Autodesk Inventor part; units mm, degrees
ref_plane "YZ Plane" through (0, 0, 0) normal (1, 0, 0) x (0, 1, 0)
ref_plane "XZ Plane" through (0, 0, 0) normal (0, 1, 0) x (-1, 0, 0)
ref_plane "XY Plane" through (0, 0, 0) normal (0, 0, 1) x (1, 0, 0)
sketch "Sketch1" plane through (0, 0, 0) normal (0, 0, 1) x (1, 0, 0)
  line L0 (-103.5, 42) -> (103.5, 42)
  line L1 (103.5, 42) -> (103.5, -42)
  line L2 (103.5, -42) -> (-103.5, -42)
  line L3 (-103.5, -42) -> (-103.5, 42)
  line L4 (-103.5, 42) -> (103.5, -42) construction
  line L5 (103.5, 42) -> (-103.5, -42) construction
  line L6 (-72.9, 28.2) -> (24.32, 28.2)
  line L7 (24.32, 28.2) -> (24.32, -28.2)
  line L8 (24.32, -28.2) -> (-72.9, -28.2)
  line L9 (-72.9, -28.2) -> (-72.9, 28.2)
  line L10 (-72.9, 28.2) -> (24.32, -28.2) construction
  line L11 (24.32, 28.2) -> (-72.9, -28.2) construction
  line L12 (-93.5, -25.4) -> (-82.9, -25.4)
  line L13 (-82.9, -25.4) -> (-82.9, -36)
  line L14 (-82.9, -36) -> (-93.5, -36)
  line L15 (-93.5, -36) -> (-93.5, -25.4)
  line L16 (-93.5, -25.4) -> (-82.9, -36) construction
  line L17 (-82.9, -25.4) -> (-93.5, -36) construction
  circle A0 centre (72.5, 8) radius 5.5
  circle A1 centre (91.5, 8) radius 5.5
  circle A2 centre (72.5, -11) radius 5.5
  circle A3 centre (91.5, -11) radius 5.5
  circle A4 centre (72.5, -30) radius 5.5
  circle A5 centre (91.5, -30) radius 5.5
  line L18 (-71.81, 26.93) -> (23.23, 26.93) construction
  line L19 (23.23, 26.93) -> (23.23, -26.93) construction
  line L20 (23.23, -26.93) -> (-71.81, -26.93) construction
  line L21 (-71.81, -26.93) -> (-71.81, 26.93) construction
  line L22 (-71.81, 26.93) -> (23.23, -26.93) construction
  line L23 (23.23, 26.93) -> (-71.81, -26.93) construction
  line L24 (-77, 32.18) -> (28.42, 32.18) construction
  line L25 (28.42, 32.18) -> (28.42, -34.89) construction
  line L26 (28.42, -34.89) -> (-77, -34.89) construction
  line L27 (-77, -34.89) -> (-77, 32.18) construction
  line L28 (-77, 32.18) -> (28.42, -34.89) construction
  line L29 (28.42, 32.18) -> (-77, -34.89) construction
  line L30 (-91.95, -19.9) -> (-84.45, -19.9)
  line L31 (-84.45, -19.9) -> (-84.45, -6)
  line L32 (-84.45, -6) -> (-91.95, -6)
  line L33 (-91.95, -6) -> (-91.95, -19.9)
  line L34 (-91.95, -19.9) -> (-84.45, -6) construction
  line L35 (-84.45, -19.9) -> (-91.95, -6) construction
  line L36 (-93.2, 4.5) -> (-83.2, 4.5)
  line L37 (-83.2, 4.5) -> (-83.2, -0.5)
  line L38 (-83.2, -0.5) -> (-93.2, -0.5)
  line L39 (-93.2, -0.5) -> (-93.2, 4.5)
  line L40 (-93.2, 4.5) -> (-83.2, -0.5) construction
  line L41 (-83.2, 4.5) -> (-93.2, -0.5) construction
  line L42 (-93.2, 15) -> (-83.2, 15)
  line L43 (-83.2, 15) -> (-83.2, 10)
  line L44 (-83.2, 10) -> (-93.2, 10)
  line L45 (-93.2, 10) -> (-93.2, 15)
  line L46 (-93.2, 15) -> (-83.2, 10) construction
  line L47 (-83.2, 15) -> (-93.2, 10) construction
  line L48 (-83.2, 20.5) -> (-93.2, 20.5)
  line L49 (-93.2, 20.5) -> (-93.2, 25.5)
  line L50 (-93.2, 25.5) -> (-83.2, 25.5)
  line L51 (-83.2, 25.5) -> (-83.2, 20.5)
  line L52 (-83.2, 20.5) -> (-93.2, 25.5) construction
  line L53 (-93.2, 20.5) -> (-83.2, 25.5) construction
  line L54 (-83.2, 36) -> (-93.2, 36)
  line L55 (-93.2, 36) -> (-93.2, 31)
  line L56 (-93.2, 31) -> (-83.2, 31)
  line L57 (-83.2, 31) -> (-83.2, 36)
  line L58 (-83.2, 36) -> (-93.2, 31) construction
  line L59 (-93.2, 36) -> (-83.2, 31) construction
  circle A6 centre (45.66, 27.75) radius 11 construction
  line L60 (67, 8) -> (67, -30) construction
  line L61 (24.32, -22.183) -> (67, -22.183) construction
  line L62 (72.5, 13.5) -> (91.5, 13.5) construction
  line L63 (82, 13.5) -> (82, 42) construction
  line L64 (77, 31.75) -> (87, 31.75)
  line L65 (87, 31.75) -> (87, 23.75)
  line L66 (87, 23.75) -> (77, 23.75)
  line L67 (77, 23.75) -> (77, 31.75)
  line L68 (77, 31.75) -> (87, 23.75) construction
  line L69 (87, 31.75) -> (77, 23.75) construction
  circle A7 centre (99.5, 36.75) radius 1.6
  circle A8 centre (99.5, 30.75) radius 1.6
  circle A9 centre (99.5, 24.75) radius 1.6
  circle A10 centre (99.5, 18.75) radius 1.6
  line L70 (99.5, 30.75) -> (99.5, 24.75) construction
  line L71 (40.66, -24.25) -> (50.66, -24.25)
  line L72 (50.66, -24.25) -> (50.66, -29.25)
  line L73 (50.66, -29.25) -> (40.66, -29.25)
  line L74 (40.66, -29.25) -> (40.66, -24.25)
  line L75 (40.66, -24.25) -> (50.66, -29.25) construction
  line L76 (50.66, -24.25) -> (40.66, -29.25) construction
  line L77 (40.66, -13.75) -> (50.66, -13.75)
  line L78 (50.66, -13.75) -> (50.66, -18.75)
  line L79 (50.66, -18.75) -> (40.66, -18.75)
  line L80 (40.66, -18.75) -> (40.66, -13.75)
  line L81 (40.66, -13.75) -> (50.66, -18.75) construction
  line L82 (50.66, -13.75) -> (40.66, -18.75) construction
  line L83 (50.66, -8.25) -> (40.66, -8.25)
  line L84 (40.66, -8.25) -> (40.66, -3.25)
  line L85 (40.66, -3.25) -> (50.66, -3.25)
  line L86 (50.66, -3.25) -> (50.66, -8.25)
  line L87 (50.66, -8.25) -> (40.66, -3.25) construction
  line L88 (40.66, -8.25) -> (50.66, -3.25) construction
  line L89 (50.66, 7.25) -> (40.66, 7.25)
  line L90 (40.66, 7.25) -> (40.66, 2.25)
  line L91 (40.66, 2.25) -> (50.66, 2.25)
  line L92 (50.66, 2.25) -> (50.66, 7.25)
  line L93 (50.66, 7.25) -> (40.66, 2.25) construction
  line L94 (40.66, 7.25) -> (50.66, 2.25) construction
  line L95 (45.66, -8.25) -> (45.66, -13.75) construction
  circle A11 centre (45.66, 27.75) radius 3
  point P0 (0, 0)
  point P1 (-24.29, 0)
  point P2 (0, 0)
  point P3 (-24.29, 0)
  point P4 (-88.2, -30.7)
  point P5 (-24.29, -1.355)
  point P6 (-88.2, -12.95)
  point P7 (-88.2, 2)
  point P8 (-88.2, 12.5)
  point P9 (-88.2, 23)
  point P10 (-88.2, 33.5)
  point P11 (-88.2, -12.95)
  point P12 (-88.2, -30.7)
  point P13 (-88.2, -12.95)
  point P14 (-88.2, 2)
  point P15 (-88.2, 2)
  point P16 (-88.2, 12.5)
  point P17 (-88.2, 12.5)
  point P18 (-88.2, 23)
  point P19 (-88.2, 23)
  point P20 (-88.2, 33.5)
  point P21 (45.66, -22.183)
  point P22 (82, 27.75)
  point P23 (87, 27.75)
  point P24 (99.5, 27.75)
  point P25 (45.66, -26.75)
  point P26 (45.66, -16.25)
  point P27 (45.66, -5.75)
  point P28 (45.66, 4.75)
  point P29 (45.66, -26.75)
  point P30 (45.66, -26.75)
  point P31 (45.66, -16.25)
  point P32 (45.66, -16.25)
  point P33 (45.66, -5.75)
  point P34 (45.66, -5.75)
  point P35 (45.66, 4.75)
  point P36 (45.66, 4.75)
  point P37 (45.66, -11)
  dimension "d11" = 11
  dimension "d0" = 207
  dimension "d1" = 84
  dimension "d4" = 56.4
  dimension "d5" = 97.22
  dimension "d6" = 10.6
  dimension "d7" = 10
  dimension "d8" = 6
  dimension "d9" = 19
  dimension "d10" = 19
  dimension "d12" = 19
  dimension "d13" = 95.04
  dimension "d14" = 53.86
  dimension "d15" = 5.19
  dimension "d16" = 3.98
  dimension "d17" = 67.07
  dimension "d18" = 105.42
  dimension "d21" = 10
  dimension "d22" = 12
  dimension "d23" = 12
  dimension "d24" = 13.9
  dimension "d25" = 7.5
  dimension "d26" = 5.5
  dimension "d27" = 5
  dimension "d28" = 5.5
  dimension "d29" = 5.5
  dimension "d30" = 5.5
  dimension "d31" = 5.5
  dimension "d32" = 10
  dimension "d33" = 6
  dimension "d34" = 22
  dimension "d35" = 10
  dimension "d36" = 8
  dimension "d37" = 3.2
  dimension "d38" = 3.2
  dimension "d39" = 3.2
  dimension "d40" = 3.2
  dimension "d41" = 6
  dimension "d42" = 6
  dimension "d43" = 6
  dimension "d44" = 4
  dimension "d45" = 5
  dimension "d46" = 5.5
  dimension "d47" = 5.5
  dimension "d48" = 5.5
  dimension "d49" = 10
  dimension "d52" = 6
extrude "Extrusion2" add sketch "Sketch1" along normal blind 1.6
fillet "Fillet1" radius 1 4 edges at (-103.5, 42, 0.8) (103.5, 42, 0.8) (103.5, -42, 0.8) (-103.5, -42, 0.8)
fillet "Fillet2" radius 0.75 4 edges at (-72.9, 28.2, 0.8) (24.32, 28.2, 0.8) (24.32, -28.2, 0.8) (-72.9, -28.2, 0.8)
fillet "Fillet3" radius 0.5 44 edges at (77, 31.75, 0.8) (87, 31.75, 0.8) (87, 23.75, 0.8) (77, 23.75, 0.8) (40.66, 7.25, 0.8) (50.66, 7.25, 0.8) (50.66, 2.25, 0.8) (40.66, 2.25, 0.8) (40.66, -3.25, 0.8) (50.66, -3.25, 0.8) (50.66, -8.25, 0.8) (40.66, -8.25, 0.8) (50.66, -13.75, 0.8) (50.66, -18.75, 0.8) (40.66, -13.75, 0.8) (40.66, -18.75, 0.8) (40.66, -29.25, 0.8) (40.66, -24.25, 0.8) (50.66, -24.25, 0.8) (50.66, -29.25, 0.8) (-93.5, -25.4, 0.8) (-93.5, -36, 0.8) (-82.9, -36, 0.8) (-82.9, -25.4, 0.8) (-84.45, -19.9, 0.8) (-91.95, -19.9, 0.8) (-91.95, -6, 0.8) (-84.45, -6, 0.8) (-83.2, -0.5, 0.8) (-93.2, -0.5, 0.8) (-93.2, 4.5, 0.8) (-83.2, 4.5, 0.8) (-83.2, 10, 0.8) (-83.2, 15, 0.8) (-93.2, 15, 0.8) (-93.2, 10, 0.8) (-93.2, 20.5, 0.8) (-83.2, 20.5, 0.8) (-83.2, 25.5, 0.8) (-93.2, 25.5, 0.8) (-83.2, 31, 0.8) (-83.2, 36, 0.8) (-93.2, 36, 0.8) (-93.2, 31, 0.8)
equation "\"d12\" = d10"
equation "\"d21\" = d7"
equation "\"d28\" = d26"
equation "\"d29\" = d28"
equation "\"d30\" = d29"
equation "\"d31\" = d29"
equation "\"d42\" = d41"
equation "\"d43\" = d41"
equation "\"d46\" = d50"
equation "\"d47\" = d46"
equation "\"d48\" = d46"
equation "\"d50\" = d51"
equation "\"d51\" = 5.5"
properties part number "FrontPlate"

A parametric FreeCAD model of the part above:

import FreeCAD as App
import Part
import Sketcher
Q = App.Units.Quantity


def edges_at(feature, points):
    """Names of the edges that pass closest to the given points."""
    edges = feature.Shape.Edges
    near = lambda p: min(range(len(edges)), key=lambda i: edges[i].distToShape(Part.Vertex(*p))[0])
    return sorted({f"Edge{near(p) + 1}" for p in points})


def add_polygon(sketch, points):
    """Adds a closed chain of lines whose ends are joined by coincident constraints."""
    first, n = sketch.GeometryCount, len(points)
    for a, b in zip(points, points[1:] + points[:1]):
        sketch.addGeometry(Part.LineSegment(App.Vector(*a, 0), App.Vector(*b, 0)), False)
    for i in range(n):
        sketch.addConstraint(Sketcher.Constraint("Coincident", first + i, 2, first + (i + 1) % n, 1))

doc = App.newDocument("Part")
params = doc.addObject("Spreadsheet::Sheet", "Params")
for row, (alias, value) in enumerate([
    ("sketch1_diameter", "11 mm"),
    ("sketch1_diameter2", "6 mm"),
    ("sketch1_diameter3", "3.2 mm"),
    ("sketch1_width", "207 mm"),
    ("sketch1_width2", "10 mm"),
    ("pad1_length", "1.6 mm"),
    ("fillet_radius", "1 mm"),
    ("fillet2_radius", "0.75 mm"),
    ("fillet3_radius", "0.5 mm"),
], start=1):
    params.set(f"A{row}", alias)
    params.set(f"B{row}", "=" + value)
    params.setAlias(f"B{row}", alias)

body = doc.addObject("PartDesign::Body", "Body")

# Sketch on XY plane
sketch1 = body.newObject("Sketcher::SketchObject", "Sketch")
sketch1.AttachmentSupport = (doc.getObject("XY_Plane"), [""])
sketch1.MapMode = "FlatFace"
add_polygon(sketch1, [(103.5, 42), (-103.5, 42), (-103.5, -42), (103.5, -42)])  # lines 0-3
add_polygon(sketch1, [(-93.5, -36), (-93.5, -25.4), (-82.9, -25.4), (-82.9, -36)])  # lines 4-7
add_polygon(sketch1, [(-84.5, -19.9), (-92, -19.9), (-92, -6), (-84.5, -6)])  # lines 8-11
add_polygon(sketch1, [(40.7, -29.2), (40.7, -24.2), (50.7, -24.2), (50.7, -29.2)])  # lines 12-15
sketch1.addGeometry(Part.Circle(App.Vector(72.5, -30, 0), App.Vector(0, 0, 1), 5.5), False)  # 16
sketch1.addGeometry(Part.Circle(App.Vector(91.5, -30, 0), App.Vector(0, 0, 1), 5.5), False)  # 17
add_polygon(sketch1, [(40.7, -18.8), (40.7, -13.8), (50.7, -13.8), (50.7, -18.8)])  # lines 18-21
add_polygon(sketch1, [(50.7, -3.2), (50.7, -8.2), (40.7, -8.2), (40.7, -3.2)])  # lines 22-25
sketch1.addGeometry(Part.Circle(App.Vector(72.5, -11, 0), App.Vector(0, 0, 1), 5.5), False)  # 26
sketch1.addGeometry(Part.Circle(App.Vector(91.5, -11, 0), App.Vector(0, 0, 1), 5.5), False)  # 27
add_polygon(sketch1, [(-93.2, -0.5), (-93.2, 4.5), (-83.2, 4.5), (-83.2, -0.5)])  # lines 28-31
add_polygon(sketch1, [(-93.2, 10), (-93.2, 15), (-83.2, 15), (-83.2, 10)])  # lines 32-35
add_polygon(sketch1, [(-72.9, -28.2), (-72.9, 28.2), (24.3, 28.2), (24.3, -28.2)])  # lines 36-39
add_polygon(sketch1, [(-83.2, 25.5), (-83.2, 20.5), (-93.2, 20.5), (-93.2, 25.5)])  # lines 40-43
add_polygon(sketch1, [(-93.2, 36), (-83.2, 36), (-83.2, 31), (-93.2, 31)])  # lines 44-47
add_polygon(sketch1, [(40.7, 7.2), (50.7, 7.2), (50.7, 2.2), (40.7, 2.2)])  # lines 48-51
sketch1.addGeometry(Part.Circle(App.Vector(72.5, 8, 0), App.Vector(0, 0, 1), 5.5), False)  # 52
sketch1.addGeometry(Part.Circle(App.Vector(91.5, 8, 0), App.Vector(0, 0, 1), 5.5), False)  # 53
sketch1.addGeometry(Part.Circle(App.Vector(99.5, 18.8, 0), App.Vector(0, 0, 1), 1.6), False)  # 54
sketch1.addGeometry(Part.Circle(App.Vector(45.7, 27.8, 0), App.Vector(0, 0, 1), 3), False)  # 55
sketch1.addGeometry(Part.Circle(App.Vector(99.5, 24.8, 0), App.Vector(0, 0, 1), 1.6), False)  # 56
add_polygon(sketch1, [(77, 23.8), (77, 31.8), (87, 31.8), (87, 23.8)])  # lines 57-60
sketch1.addGeometry(Part.Circle(App.Vector(99.5, 30.8, 0), App.Vector(0, 0, 1), 1.6), False)  # 61
sketch1.addGeometry(Part.Circle(App.Vector(99.5, 36.8, 0), App.Vector(0, 0, 1), 1.6), False)  # 62
sketch1.addConstraint([
    Sketcher.Constraint("Horizontal", 0),
    Sketcher.Constraint("Vertical", 1),
    Sketcher.Constraint("Horizontal", 2),
    Sketcher.Constraint("Vertical", 3),
    Sketcher.Constraint("Vertical", 4),
    Sketcher.Constraint("Horizontal", 5),
    Sketcher.Constraint("Vertical", 6),
    Sketcher.Constraint("Horizontal", 7),
    Sketcher.Constraint("Horizontal", 8),
    Sketcher.Constraint("Vertical", 9),
    Sketcher.Constraint("Horizontal", 10),
    Sketcher.Constraint("Vertical", 11),
    Sketcher.Constraint("Vertical", 12),
    Sketcher.Constraint("Horizontal", 13),
    Sketcher.Constraint("Vertical", 14),
    Sketcher.Constraint("Horizontal", 15),
    Sketcher.Constraint("Vertical", 18),
    Sketcher.Constraint("Horizontal", 19),
    Sketcher.Constraint("Vertical", 20),
    Sketcher.Constraint("Horizontal", 21),
    Sketcher.Constraint("Vertical", 22),
    Sketcher.Constraint("Horizontal", 23),
    Sketcher.Constraint("Vertical", 24),
    Sketcher.Constraint("Horizontal", 25),
    Sketcher.Constraint("Vertical", 28),
    Sketcher.Constraint("Horizontal", 29),
    Sketcher.Constraint("Vertical", 30),
    Sketcher.Constraint("Horizontal", 31),
    Sketcher.Constraint("Vertical", 32),
    Sketcher.Constraint("Horizontal", 33),
    Sketcher.Constraint("Vertical", 34),
    Sketcher.Constraint("Horizontal", 35),
    Sketcher.Constraint("Vertical", 36),
    Sketcher.Constraint("Horizontal", 37),
    Sketcher.Constraint("Vertical", 38),
    Sketcher.Constraint("Horizontal", 39),
    Sketcher.Constraint("Vertical", 40),
    Sketcher.Constraint("Horizontal", 41),
    Sketcher.Constraint("Vertical", 42),
    Sketcher.Constraint("Horizontal", 43),
    Sketcher.Constraint("Horizontal", 44),
    Sketcher.Constraint("Vertical", 45),
    Sketcher.Constraint("Horizontal", 46),
    Sketcher.Constraint("Vertical", 47),
    Sketcher.Constraint("Horizontal", 48),
    Sketcher.Constraint("Vertical", 49),
    Sketcher.Constraint("Horizontal", 50),
    Sketcher.Constraint("Vertical", 51),
    Sketcher.Constraint("Vertical", 57),
    Sketcher.Constraint("Horizontal", 58),
    Sketcher.Constraint("Vertical", 59),
    Sketcher.Constraint("Horizontal", 60),
    Sketcher.Constraint("Equal", 16, 17),
    Sketcher.Constraint("Equal", 17, 26),
    Sketcher.Constraint("Equal", 26, 27),
    Sketcher.Constraint("Equal", 27, 52),
    Sketcher.Constraint("Equal", 52, 53),
    Sketcher.Constraint("Equal", 54, 56),
    Sketcher.Constraint("Equal", 56, 61),
    Sketcher.Constraint("Equal", 61, 62),
    Sketcher.Constraint("Symmetric", 0, 2, 2, 2, -1, 1),
    Sketcher.Constraint("Horizontal", 16, 3, 17, 3),
    Sketcher.Constraint("Horizontal", 26, 3, 27, 3),
    Sketcher.Constraint("Horizontal", 52, 3, 53, 3),
    Sketcher.Constraint("Vertical", 16, 3, 26, 3),
    Sketcher.Constraint("Vertical", 17, 3, 27, 3),
    Sketcher.Constraint("Vertical", 26, 3, 52, 3),
    Sketcher.Constraint("Vertical", 27, 3, 53, 3),
    Sketcher.Constraint("Vertical", 54, 3, 56, 3),
    Sketcher.Constraint("Vertical", 56, 3, 61, 3),
    Sketcher.Constraint("Vertical", 61, 3, 62, 3),
    Sketcher.Constraint("Vertical", 15, 2, 18, 2),
    Sketcher.Constraint("Vertical", 14, 2, 19, 2),
    Sketcher.Constraint("Vertical", 20, 2, 22, 2),
    Sketcher.Constraint("Vertical", 21, 2, 23, 2),
    Sketcher.Constraint("Vertical", 31, 2, 32, 2),
    Sketcher.Constraint("Vertical", 30, 2, 33, 2),
    Sketcher.Constraint("Vertical", 34, 2, 40, 2),
    Sketcher.Constraint("Vertical", 35, 2, 41, 2),
    Sketcher.Constraint("Vertical", 43, 2, 44, 2),
    Sketcher.Constraint("Vertical", 42, 2, 46, 2),
    Sketcher.Constraint("Vertical", 25, 2, 48, 2),
    Sketcher.Constraint("Vertical", 24, 2, 50, 2),
    Sketcher.Constraint("Equal", 25, 29),
    Sketcher.Constraint("Equal", 50, 58),
    Sketcher.Constraint("Equal", 7, 4),
    Sketcher.Constraint("Equal", 14, 18),
    Sketcher.Constraint("Equal", 20, 22),
    Sketcher.Constraint("Equal", 24, 28),
    Sketcher.Constraint("Equal", 30, 32),
    Sketcher.Constraint("Equal", 34, 40),
    Sketcher.Constraint("Equal", 42, 45),
    Sketcher.Constraint("Equal", 47, 49),
    Sketcher.Constraint("Diameter", 16, Q("11 mm")),
    Sketcher.Constraint("Diameter", 55, Q("6 mm")),
    Sketcher.Constraint("Diameter", 54, Q("3.2 mm")),
    Sketcher.Constraint("DistanceX", 0, 2, 0, 1, Q("207 mm")),
    Sketcher.Constraint("DistanceX", 13, 1, 13, 2, Q("10 mm")),
    Sketcher.Constraint("DistanceY", 1, 2, 1, 1, Q("84 mm")),
    Sketcher.Constraint("DistanceY", 12, 1, 12, 2, Q("5 mm")),
    Sketcher.Constraint("DistanceY", 57, 1, 57, 2, Q("8 mm")),
    Sketcher.Constraint("DistanceX", 5, 1, 5, 2, Q("10.6 mm")),
    Sketcher.Constraint("DistanceX", 8, 2, 8, 1, Q("7.5 mm")),
    Sketcher.Constraint("DistanceY", 9, 1, 9, 2, Q("13.9 mm")),
    Sketcher.Constraint("DistanceY", 36, 1, 36, 2, Q("56.4 mm")),
    Sketcher.Constraint("DistanceY", 26, 3, -1, 1, Q("11 mm")),
    Sketcher.Constraint("DistanceY", -1, 1, 52, 3, Q("8 mm")),
    Sketcher.Constraint("DistanceY", 9, 2, -1, 1, Q("6 mm")),
    Sketcher.Constraint("DistanceY", -1, 1, 34, 2, Q("10 mm")),
    Sketcher.Constraint("DistanceX", 37, 1, 37, 2, Q("97.22 mm")),
    Sketcher.Constraint("DistanceY", 16, 3, -1, 1, Q("30 mm")),
    Sketcher.Constraint("DistanceY", 6, 2, -1, 1, Q("36 mm")),
    Sketcher.Constraint("DistanceY", -1, 1, 44, 2, Q("36 mm")),
    Sketcher.Constraint("DistanceX", -1, 1, 57, 2, Q("77 mm")),
    Sketcher.Constraint("DistanceX", -1, 1, 16, 3, Q("72.5 mm")),
    Sketcher.Constraint("DistanceX", -1, 1, 17, 3, Q("91.5 mm")),
    Sketcher.Constraint("DistanceX", -1, 1, 54, 3, Q("99.5 mm")),
    Sketcher.Constraint("DistanceX", 4, 2, -1, 1, Q("93.5 mm")),
    Sketcher.Constraint("DistanceX", 28, 2, -1, 1, Q("93.2 mm")),
    Sketcher.Constraint("DistanceY", -1, 1, 28, 2, Q("4.5 mm")),
    Sketcher.Constraint("DistanceX", 36, 2, -1, 1, Q("72.9 mm")),
    Sketcher.Constraint("DistanceY", -1, 1, 36, 2, Q("28.2 mm")),
    Sketcher.Constraint("DistanceY", -1, 1, 40, 2, Q("20.5 mm")),
    Sketcher.Constraint("DistanceY", -1, 1, 54, 3, Q("18.75 mm")),
    Sketcher.Constraint("DistanceX", -1, 1, 55, 3, Q("45.66 mm")),
    Sketcher.Constraint("DistanceY", -1, 1, 55, 3, Q("27.75 mm")),
    Sketcher.Constraint("DistanceY", -1, 1, 56, 3, Q("24.75 mm")),
    Sketcher.Constraint("DistanceY", -1, 1, 61, 3, Q("30.75 mm")),
    Sketcher.Constraint("DistanceY", -1, 1, 62, 3, Q("36.75 mm")),
    Sketcher.Constraint("DistanceX", 8, 2, -1, 1, Q("91.95 mm")),
    Sketcher.Constraint("DistanceX", -1, 1, 12, 2, Q("40.66 mm")),
    Sketcher.Constraint("DistanceY", 12, 2, -1, 1, Q("24.25 mm")),
    Sketcher.Constraint("DistanceY", 18, 2, -1, 1, Q("13.75 mm")),
    Sketcher.Constraint("DistanceY", 22, 2, -1, 1, Q("8.25 mm")),
    Sketcher.Constraint("DistanceY", -1, 1, 48, 2, Q("7.25 mm")),
    Sketcher.Constraint("DistanceY", -1, 1, 57, 2, Q("31.75 mm")),
])
sketch1.setExpression("Constraints[145]", "Params.sketch1_diameter")
sketch1.setExpression("Constraints[146]", "Params.sketch1_diameter2")
sketch1.setExpression("Constraints[147]", "Params.sketch1_diameter3")
sketch1.setExpression("Constraints[148]", "Params.sketch1_width")
sketch1.setExpression("Constraints[149]", "Params.sketch1_width2")
pad1 = body.newObject("PartDesign::Pad", "Pad")
pad1.Profile = sketch1
pad1.setExpression("Length", "Params.pad1_length")
doc.recompute()

fillet = body.newObject("PartDesign::Fillet", "Fillet")
fillet.Base = (pad1, edges_at(pad1, [
    (-103.5, 42, 0.8),
    (103.5, 42, 0.8),
    (103.5, -42, 0.8),
    (-103.5, -42, 0.8),
]))
fillet.setExpression("Radius", "Params.fillet_radius")
doc.recompute()

fillet2 = body.newObject("PartDesign::Fillet", "Fillet001")
fillet2.Base = (fillet, edges_at(fillet, [
    (-72.9, 28.2, 0.8),
    (24.32, 28.2, 0.8),
    (24.32, -28.2, 0.8),
    (-72.9, -28.2, 0.8),
]))
fillet2.setExpression("Radius", "Params.fillet2_radius")
doc.recompute()

fillet3 = body.newObject("PartDesign::Fillet", "Fillet002")
fillet3.Base = (fillet2, edges_at(fillet2, [
    (77, 31.75, 0.8),
    (87, 31.75, 0.8),
    (87, 23.75, 0.8),
    (77, 23.75, 0.8),
    (40.66, 7.25, 0.8),
    (50.66, 7.25, 0.8),
    (50.66, 2.25, 0.8),
    (40.66, 2.25, 0.8),
    (40.66, -3.25, 0.8),
    (50.66, -3.25, 0.8),
    (50.66, -8.25, 0.8),
    (40.66, -8.25, 0.8),
    (50.66, -13.75, 0.8),
    (50.66, -18.75, 0.8),
    (40.66, -13.75, 0.8),
    (40.66, -18.75, 0.8),
    (40.66, -29.25, 0.8),
    (40.66, -24.25, 0.8),
    (50.66, -24.25, 0.8),
    (50.66, -29.25, 0.8),
    (-93.5, -25.4, 0.8),
    (-93.5, -36, 0.8),
    (-82.9, -36, 0.8),
    (-82.9, -25.4, 0.8),
    (-84.45, -19.9, 0.8),
    (-91.95, -19.9, 0.8),
    (-91.95, -6, 0.8),
    (-84.45, -6, 0.8),
    (-83.2, -0.5, 0.8),
    (-93.2, -0.5, 0.8),
    (-93.2, 4.5, 0.8),
    (-83.2, 4.5, 0.8),
    (-83.2, 10, 0.8),
    (-83.2, 15, 0.8),
    (-93.2, 15, 0.8),
    (-93.2, 10, 0.8),
    (-93.2, 20.5, 0.8),
    (-83.2, 20.5, 0.8),
    (-83.2, 25.5, 0.8),
    (-93.2, 25.5, 0.8),
    (-83.2, 31, 0.8),
    (-83.2, 36, 0.8),
    (-93.2, 36, 0.8),
    (-93.2, 31, 0.8),
]))
fillet3.setExpression("Radius", "Params.fillet3_radius")

doc.recompute()
